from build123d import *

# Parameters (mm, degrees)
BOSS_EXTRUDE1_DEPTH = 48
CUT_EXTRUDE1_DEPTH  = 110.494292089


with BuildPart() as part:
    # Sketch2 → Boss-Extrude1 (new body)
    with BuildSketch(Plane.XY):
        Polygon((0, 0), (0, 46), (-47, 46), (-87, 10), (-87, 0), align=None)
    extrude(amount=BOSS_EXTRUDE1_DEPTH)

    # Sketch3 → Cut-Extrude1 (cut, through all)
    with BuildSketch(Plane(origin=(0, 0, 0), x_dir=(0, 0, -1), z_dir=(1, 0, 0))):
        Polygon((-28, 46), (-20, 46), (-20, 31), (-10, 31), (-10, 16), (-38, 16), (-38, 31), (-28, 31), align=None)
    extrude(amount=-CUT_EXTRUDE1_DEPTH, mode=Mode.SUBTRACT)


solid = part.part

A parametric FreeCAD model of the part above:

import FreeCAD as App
import Part
import Sketcher

V = App.Vector
Q = App.Units.Quantity


def add_polygon(sketch, points):
    """Adds a closed chain of lines whose ends are joined by coincident constraints."""
    first, n = sketch.GeometryCount, len(points)
    for a, b in zip(points, points[1:] + points[:1]):
        sketch.addGeometry(Part.LineSegment(App.Vector(*a, 0), App.Vector(*b, 0)), False)
    for i in range(n):
        sketch.addConstraint(Sketcher.Constraint("Coincident", first + i, 2, first + (i + 1) % n, 1))

doc = App.newDocument("Part")
body = doc.addObject("PartDesign::Body", "Body")

sketch1 = doc.addObject("Sketcher::SketchObject", "Sketch")
body.addObject(sketch1)
sketch1.AttachmentSupport = (doc.XY_Plane, [""])
sketch1.MapMode = "FlatFace"
add_polygon(sketch1, [(0, 0), (0, 46), (-47, 46), (-87, 10), (-87, 0)])
sketch1.addConstraint([
    Sketcher.Constraint("Vertical", 0),
    Sketcher.Constraint("Horizontal", 1),
    Sketcher.Constraint("Vertical", 3),
    Sketcher.Constraint("Horizontal", 4),
    Sketcher.Constraint("Coincident", 4, 2, -1, 1),
    Sketcher.Constraint("DistanceX", 1, 2, 1, 1, Q("47 mm")),
    Sketcher.Constraint("DistanceX", 4, 1, 4, 2, Q("87 mm")),
    Sketcher.Constraint("DistanceY", 0, 1, 0, 2, Q("46 mm")),
    Sketcher.Constraint("DistanceY", 3, 2, 3, 1, Q("10 mm")),
])
pad1 = doc.addObject("PartDesign::Pad", "Pad")
body.addObject(pad1)
pad1.Profile = sketch1
pad1.Length = 48

sketch2 = doc.addObject("Sketcher::SketchObject", "Sketch001")
body.addObject(sketch2)
sketch2.AttachmentSupport = (doc.YZ_Plane, [""])
sketch2.MapMode = "FlatFace"
add_polygon(sketch2, [(46, 20), (46, 28), (31, 28), (31, 38), (16, 38), (16, 10), (31, 10), (31, 20)])
sketch2.addConstraint([
    Sketcher.Constraint("Vertical", 0),
    Sketcher.Constraint("Horizontal", 1),
    Sketcher.Constraint("Vertical", 2),
    Sketcher.Constraint("Horizontal", 3),
    Sketcher.Constraint("Vertical", 4),
    Sketcher.Constraint("Horizontal", 5),
    Sketcher.Constraint("Vertical", 6),
    Sketcher.Constraint("Horizontal", 7),
    Sketcher.Constraint("Vertical", 2, 2, 5, 2),
    Sketcher.Constraint("Equal", 1, 3),
    Sketcher.Constraint("Equal", 2, 6),
    Sketcher.Constraint("DistanceX", 1, 2, 1, 1, Q("15 mm")),
    Sketcher.Constraint("DistanceY", 0, 1, 0, 2, Q("8 mm")),
    Sketcher.Constraint("DistanceY", 2, 1, 2, 2, Q("10 mm")),
    Sketcher.Constraint("DistanceX", -1, 1, 0, 2, Q("46 mm")),
    Sketcher.Constraint("DistanceY", -1, 1, 0, 2, Q("28 mm")),
])
pocket1 = doc.addObject("PartDesign::Pocket", "Pocket")
body.addObject(pocket1)
pocket1.Profile = sketch2
pocket1.Type = "ThroughAll"

doc.recompute()
